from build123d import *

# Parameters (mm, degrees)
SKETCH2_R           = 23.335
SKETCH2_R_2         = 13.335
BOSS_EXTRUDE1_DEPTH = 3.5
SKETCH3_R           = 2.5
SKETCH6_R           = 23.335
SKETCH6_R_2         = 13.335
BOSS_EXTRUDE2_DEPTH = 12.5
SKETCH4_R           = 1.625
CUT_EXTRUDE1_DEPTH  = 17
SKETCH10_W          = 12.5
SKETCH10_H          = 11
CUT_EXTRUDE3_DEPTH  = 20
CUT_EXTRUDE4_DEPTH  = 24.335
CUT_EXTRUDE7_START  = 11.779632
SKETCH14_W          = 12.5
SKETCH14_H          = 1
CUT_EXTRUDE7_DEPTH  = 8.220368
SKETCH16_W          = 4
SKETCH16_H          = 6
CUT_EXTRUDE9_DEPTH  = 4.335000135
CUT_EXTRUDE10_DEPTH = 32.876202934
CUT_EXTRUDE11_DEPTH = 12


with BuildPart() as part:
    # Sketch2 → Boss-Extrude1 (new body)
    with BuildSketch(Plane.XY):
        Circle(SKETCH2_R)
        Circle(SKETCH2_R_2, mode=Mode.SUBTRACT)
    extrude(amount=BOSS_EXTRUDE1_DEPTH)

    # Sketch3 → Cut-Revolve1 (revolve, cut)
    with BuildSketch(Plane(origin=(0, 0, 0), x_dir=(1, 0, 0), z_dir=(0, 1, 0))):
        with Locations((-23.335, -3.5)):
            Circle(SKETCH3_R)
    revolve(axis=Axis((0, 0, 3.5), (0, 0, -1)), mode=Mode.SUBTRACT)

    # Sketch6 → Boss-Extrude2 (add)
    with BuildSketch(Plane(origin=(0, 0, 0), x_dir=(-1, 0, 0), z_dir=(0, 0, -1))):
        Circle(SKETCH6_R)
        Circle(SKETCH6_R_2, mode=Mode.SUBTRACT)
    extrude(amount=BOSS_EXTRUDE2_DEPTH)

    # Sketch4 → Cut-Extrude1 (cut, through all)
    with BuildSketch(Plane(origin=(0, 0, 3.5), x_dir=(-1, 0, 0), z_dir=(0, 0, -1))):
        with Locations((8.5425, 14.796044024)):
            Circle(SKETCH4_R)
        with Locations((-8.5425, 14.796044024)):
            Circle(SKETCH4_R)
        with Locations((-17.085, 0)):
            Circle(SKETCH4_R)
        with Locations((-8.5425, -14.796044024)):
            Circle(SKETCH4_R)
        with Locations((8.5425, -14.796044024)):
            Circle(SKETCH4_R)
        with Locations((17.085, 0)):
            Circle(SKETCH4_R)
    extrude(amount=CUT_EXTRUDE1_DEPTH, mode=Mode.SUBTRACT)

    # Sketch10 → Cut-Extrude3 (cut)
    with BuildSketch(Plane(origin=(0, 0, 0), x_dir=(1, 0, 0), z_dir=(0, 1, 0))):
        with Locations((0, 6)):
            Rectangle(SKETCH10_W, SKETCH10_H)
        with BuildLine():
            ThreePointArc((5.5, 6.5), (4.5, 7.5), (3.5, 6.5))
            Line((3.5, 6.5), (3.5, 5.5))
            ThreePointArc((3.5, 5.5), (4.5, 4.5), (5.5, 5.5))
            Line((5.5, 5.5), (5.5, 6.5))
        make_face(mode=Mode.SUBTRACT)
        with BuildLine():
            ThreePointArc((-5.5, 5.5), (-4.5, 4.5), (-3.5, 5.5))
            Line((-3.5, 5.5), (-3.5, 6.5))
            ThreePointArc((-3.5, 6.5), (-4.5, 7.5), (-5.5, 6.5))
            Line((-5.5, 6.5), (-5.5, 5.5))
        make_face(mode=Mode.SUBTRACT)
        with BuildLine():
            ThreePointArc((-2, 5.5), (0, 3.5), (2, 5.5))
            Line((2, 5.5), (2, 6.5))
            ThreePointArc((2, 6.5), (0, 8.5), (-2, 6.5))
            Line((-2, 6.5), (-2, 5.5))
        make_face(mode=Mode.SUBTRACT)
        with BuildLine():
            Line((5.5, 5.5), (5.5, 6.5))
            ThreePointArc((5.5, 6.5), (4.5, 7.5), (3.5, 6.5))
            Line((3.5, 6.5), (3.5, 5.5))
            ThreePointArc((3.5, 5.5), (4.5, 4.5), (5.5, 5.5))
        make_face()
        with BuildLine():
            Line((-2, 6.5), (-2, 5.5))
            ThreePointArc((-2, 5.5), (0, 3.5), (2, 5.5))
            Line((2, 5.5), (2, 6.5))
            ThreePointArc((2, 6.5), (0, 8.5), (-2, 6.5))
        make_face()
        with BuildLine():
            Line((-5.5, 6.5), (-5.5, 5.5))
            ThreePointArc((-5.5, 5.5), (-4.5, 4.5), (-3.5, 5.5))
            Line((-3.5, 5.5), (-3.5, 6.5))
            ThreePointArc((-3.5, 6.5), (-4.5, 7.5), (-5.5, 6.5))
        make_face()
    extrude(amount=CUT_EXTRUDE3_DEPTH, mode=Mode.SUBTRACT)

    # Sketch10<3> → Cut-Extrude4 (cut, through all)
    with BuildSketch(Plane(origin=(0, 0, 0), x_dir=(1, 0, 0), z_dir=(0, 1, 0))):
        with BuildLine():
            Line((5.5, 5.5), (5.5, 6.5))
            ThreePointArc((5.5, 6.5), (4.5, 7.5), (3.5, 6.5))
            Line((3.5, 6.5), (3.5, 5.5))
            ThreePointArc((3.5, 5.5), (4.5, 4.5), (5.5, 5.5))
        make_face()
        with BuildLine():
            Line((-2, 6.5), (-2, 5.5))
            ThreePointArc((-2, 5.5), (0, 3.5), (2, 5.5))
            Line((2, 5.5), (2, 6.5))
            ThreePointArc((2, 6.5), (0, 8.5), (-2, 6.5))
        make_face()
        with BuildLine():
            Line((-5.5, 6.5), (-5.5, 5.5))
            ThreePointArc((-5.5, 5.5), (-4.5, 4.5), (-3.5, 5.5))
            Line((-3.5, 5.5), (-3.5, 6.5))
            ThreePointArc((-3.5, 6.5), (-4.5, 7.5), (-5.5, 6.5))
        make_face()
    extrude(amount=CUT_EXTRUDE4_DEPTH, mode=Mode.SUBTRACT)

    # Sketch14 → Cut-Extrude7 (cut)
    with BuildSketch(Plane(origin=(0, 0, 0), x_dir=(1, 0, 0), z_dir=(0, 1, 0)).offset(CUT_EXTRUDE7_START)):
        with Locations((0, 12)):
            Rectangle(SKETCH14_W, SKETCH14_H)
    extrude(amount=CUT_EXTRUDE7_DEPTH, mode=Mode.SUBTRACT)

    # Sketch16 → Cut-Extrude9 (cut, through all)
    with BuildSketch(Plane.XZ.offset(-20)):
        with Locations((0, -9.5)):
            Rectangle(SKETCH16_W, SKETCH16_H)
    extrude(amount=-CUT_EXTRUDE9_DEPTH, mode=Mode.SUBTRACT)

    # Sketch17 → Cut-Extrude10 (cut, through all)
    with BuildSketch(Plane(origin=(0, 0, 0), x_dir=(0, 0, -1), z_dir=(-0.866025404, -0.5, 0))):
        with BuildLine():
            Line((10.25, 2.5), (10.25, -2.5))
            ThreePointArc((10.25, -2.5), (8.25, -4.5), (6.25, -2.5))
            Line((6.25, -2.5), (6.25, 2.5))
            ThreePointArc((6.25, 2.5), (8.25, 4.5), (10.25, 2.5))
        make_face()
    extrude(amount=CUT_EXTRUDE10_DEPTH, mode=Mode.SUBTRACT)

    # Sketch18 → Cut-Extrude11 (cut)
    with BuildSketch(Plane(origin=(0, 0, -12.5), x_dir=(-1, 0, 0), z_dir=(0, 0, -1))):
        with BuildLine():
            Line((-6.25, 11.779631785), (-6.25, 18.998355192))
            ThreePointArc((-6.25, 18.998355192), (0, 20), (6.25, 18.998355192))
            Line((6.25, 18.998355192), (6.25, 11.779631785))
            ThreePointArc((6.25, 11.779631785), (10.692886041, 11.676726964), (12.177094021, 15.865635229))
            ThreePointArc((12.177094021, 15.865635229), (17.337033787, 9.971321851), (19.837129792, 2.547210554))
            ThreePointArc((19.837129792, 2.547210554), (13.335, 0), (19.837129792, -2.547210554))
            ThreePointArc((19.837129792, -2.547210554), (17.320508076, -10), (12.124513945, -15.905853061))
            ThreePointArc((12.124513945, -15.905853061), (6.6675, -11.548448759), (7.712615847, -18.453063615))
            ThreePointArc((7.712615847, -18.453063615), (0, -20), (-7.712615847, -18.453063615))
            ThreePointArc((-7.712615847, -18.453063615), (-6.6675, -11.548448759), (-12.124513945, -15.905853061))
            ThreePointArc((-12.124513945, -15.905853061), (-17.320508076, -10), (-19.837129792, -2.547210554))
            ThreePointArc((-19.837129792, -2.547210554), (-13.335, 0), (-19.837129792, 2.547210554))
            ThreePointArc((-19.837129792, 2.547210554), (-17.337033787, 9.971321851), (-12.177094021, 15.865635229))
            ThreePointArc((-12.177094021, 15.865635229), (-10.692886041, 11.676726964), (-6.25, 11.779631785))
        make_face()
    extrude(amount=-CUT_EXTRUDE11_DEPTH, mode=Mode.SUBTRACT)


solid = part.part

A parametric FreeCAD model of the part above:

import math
import FreeCAD as App
import Part
import Sketcher


def add_polygon(sketch, points):
    """Adds a closed chain of lines whose ends are joined by coincident constraints."""
    first, n = sketch.GeometryCount, len(points)
    for a, b in zip(points, points[1:] + points[:1]):
        sketch.addGeometry(Part.LineSegment(App.Vector(*a, 0), App.Vector(*b, 0)), False)
    for i in range(n):
        sketch.addConstraint(Sketcher.Constraint("Coincident", first + i, 2, first + (i + 1) % n, 1))

doc = App.newDocument("Part")
body = doc.addObject("PartDesign::Body", "Body")

# Sketch on XY plane
sketch1 = doc.addObject("Sketcher::SketchObject", "Sketch")
body.addObject(sketch1)
sketch1.AttachmentSupport = (doc.XY_Plane, [""])
sketch1.MapMode = "FlatFace"
sketch1.addGeometry(Part.Circle(App.Vector(0, 0, 0), App.Vector(0, 0, 1), 23.335), False)
sketch1.addGeometry(Part.Circle(App.Vector(0, 0, 0), App.Vector(0, 0, 1), 13.335), False)
sketch1.addConstraint(Sketcher.Constraint("Coincident", 0, 3, -1, 1))
sketch1.addConstraint(Sketcher.Constraint("Coincident", 1, 3, -1, 1))
sketch1.addConstraint(Sketcher.Constraint("Diameter", 0, 46.67))
sketch1.addConstraint(Sketcher.Constraint("Diameter", 1, 26.67))
pad1 = doc.addObject("PartDesign::Pad", "Pad")
body.addObject(pad1)
pad1.Profile = sketch1
pad1.Length = 3.5

# Sketch on XZ plane
sketch2 = doc.addObject("Sketcher::SketchObject", "Sketch001")
body.addObject(sketch2)
sketch2.AttachmentSupport = (doc.XZ_Plane, [""])
sketch2.MapMode = "FlatFace"
sketch2.addGeometry(Part.Circle(App.Vector(-23.335, 3.5, 0), App.Vector(0, 0, 1), 2.5), False)
sketch2.addConstraint(Sketcher.Constraint("Diameter", 0, 5.0))
sketch2.addConstraint(Sketcher.Constraint("DistanceY", -1, 1, 0, 3, 3.5))
sketch2.addConstraint(Sketcher.Constraint("DistanceX", 0, 3, -1, 1, 23.335))
groove = doc.addObject("PartDesign::Groove", "Groove")
body.addObject(groove)
groove.Profile = sketch2
groove.ReferenceAxis = (sketch2, ["V_Axis"])
groove.Angle = 360

# Sketch on XY plane
sketch3 = doc.addObject("Sketcher::SketchObject", "Sketch002")
body.addObject(sketch3)
sketch3.AttachmentSupport = (doc.XY_Plane, [""])
sketch3.MapMode = "FlatFace"
sketch3.addGeometry(Part.Circle(App.Vector(0, 0, 0), App.Vector(0, 0, 1), 23.335), False)
sketch3.addGeometry(Part.Circle(App.Vector(0, 0, 0), App.Vector(0, 0, 1), 13.335), False)
sketch3.addConstraint(Sketcher.Constraint("Coincident", 0, 3, -1, 1))
sketch3.addConstraint(Sketcher.Constraint("Coincident", 1, 3, -1, 1))
sketch3.addConstraint(Sketcher.Constraint("Diameter", 0, 46.67))
sketch3.addConstraint(Sketcher.Constraint("Diameter", 1, 26.67))
pad2 = doc.addObject("PartDesign::Pad", "Pad001")
body.addObject(pad2)
pad2.Profile = sketch3
pad2.Length = 12.5
pad2.Reversed = True

# Sketch on XY plane
sketch4 = doc.addObject("Sketcher::SketchObject", "Sketch003")
body.addObject(sketch4)
sketch4.AttachmentSupport = (doc.XY_Plane, [""])
sketch4.MapMode = "FlatFace"
sketch4.AttachmentOffset = App.Placement(App.Vector(0, 0, 3.5), App.Rotation())
sketch4.addGeometry(Part.Circle(App.Vector(-8.5425, 14.796044, 0), App.Vector(0, 0, 1), 1.625), False)
sketch4.addGeometry(Part.Circle(App.Vector(8.5425, 14.796044, 0), App.Vector(0, 0, 1), 1.625), False)
sketch4.addGeometry(Part.Circle(App.Vector(17.085, 0, 0), App.Vector(0, 0, 1), 1.625), False)
sketch4.addGeometry(Part.Circle(App.Vector(8.5425, -14.796044, 0), App.Vector(0, 0, 1), 1.625), False)
sketch4.addGeometry(Part.Circle(App.Vector(-8.5425, -14.796044, 0), App.Vector(0, 0, 1), 1.625), False)
sketch4.addGeometry(Part.Circle(App.Vector(-17.085, 0, 0), App.Vector(0, 0, 1), 1.625), False)
sketch4.addConstraint(Sketcher.Constraint("Equal", 0, 1))
sketch4.addConstraint(Sketcher.Constraint("Equal", 1, 2))
sketch4.addConstraint(Sketcher.Constraint("Equal", 2, 3))
sketch4.addConstraint(Sketcher.Constraint("Equal", 3, 4))
sketch4.addConstraint(Sketcher.Constraint("Equal", 4, 5))
sketch4.addConstraint(Sketcher.Constraint("Symmetric", 0, 3, 3, 3, -1, 1))
sketch4.addConstraint(Sketcher.Constraint("Symmetric", 1, 3, 4, 3, -1, 1))
sketch4.addConstraint(Sketcher.Constraint("Symmetric", 2, 3, 5, 3, -1, 1))
sketch4.addConstraint(Sketcher.Constraint("Symmetric", 0, 3, 1, 3, -2))
sketch4.addConstraint(Sketcher.Constraint("PointOnObject", 2, 3, -1))
sketch4.addConstraint(Sketcher.Constraint("Diameter", 0, 3.25))
sketch4.addConstraint(Sketcher.Constraint("DistanceX", 5, 3, 2, 3, 34.17))
sketch4.addConstraint(Sketcher.Constraint("DistanceX", 0, 3, 1, 3, 17.085))
sketch4.addConstraint(Sketcher.Constraint("DistanceY", 3, 3, 1, 3, 29.592088))
pocket1 = doc.addObject("PartDesign::Pocket", "Pocket")
body.addObject(pocket1)
pocket1.Profile = sketch4
pocket1.Type = "ThroughAll"

# Sketch on XZ plane
sketch5 = doc.addObject("Sketcher::SketchObject", "Sketch004")
body.addObject(sketch5)
sketch5.AttachmentSupport = (doc.XZ_Plane, [""])
sketch5.MapMode = "FlatFace"
add_polygon(sketch5, [(-6.25, -11.5), (-6.25, -0.5), (6.25, -0.5), (6.25, -11.5)])  # lines 0-3
sketch5.addConstraint(Sketcher.Constraint("Vertical", 0))
sketch5.addConstraint(Sketcher.Constraint("Horizontal", 1))
sketch5.addConstraint(Sketcher.Constraint("Vertical", 2))
sketch5.addConstraint(Sketcher.Constraint("Horizontal", 3))
sketch5.addConstraint(Sketcher.Constraint("DistanceY", 0, 1, 0, 2, 11.0))
sketch5.addConstraint(Sketcher.Constraint("DistanceX", 1, 1, 1, 2, 12.5))
sketch5.addConstraint(Sketcher.Constraint("DistanceY", 0, 2, -1, 1, 0.5))
sketch5.addConstraint(Sketcher.Constraint("DistanceX", 0, 2, -1, 1, 6.25))
pocket2 = doc.addObject("PartDesign::Pocket", "Pocket001")
body.addObject(pocket2)
pocket2.Profile = sketch5
pocket2.Length = 20

# Sketch on XZ plane
sketch6 = doc.addObject("Sketcher::SketchObject", "Sketch005")
body.addObject(sketch6)
sketch6.AttachmentSupport = (doc.XZ_Plane, [""])
sketch6.MapMode = "FlatFace"
sketch6.addGeometry(Part.LineSegment(App.Vector(5.5, -5.5, 0), App.Vector(5.5, -6.5, 0)), False)
sketch6.addGeometry(Part.ArcOfCircle(Part.Circle(App.Vector(4.5, -6.5, 0), App.Vector(0, 0, 1), 1), math.radians(180), math.radians(360)), False)
sketch6.addGeometry(Part.LineSegment(App.Vector(3.5, -6.5, 0), App.Vector(3.5, -5.5, 0)), False)
sketch6.addGeometry(Part.ArcOfCircle(Part.Circle(App.Vector(4.5, -5.5, 0), App.Vector(0, 0, 1), 1), math.radians(0), math.radians(180)), False)
sketch6.addGeometry(Part.LineSegment(App.Vector(-2, -6.5, 0), App.Vector(-2, -5.5, 0)), False)
sketch6.addGeometry(Part.ArcOfCircle(Part.Circle(App.Vector(0, -5.5, 0), App.Vector(0, 0, 1), 2), math.radians(0), math.radians(180)), False)
sketch6.addGeometry(Part.LineSegment(App.Vector(2, -5.5, 0), App.Vector(2, -6.5, 0)), False)
sketch6.addGeometry(Part.ArcOfCircle(Part.Circle(App.Vector(0, -6.5, 0), App.Vector(0, 0, 1), 2), math.radians(180), math.radians(360)), False)
sketch6.addGeometry(Part.LineSegment(App.Vector(-5.5, -6.5, 0), App.Vector(-5.5, -5.5, 0)), False)
sketch6.addGeometry(Part.ArcOfCircle(Part.Circle(App.Vector(-4.5, -5.5, 0), App.Vector(0, 0, 1), 1), math.radians(0), math.radians(180)), False)
sketch6.addGeometry(Part.LineSegment(App.Vector(-3.5, -5.5, 0), App.Vector(-3.5, -6.5, 0)), False)
sketch6.addGeometry(Part.ArcOfCircle(Part.Circle(App.Vector(-4.5, -6.5, 0), App.Vector(0, 0, 1), 1), math.radians(180), math.radians(360)), False)
sketch6.addConstraint(Sketcher.Constraint("Tangent", 0, 2, 1, 2))
sketch6.addConstraint(Sketcher.Constraint("Tangent", 1, 1, 2, 1))
sketch6.addConstraint(Sketcher.Constraint("Tangent", 2, 2, 3, 2))
sketch6.addConstraint(Sketcher.Constraint("Tangent", 3, 1, 0, 1))
sketch6.addConstraint(Sketcher.Constraint("Tangent", 4, 2, 5, 2))
sketch6.addConstraint(Sketcher.Constraint("Tangent", 5, 1, 6, 1))
sketch6.addConstraint(Sketcher.Constraint("Tangent", 6, 2, 7, 2))
sketch6.addConstraint(Sketcher.Constraint("Tangent", 7, 1, 4, 1))
sketch6.addConstraint(Sketcher.Constraint("Tangent", 8, 2, 9, 2))
sketch6.addConstraint(Sketcher.Constraint("Tangent", 9, 1, 10, 1))
sketch6.addConstraint(Sketcher.Constraint("Tangent", 10, 2, 11, 2))
sketch6.addConstraint(Sketcher.Constraint("Tangent", 11, 1, 8, 1))
sketch6.addConstraint(Sketcher.Constraint("Vertical", 0))
sketch6.addConstraint(Sketcher.Constraint("Vertical", 2))
sketch6.addConstraint(Sketcher.Constraint("Vertical", 4))
sketch6.addConstraint(Sketcher.Constraint("Vertical", 6))
sketch6.addConstraint(Sketcher.Constraint("Vertical", 8))
sketch6.addConstraint(Sketcher.Constraint("Vertical", 10))
sketch6.addConstraint(Sketcher.Constraint("Equal", 3, 9))
sketch6.addConstraint(Sketcher.Constraint("Symmetric", 3, 3, 9, 3, -2))
sketch6.addConstraint(Sketcher.Constraint("PointOnObject", 5, 3, -2))
sketch6.addConstraint(Sketcher.Constraint("Horizontal", 3, 3, 5, 3))
sketch6.addConstraint(Sketcher.Constraint("Horizontal", 1, 3, 7, 3))
sketch6.addConstraint(Sketcher.Constraint("Horizontal", 7, 3, 11, 3))
sketch6.addConstraint(Sketcher.Constraint("Radius", 1, 1.0))
sketch6.addConstraint(Sketcher.Constraint("Radius", 5, 2.0))
sketch6.addConstraint(Sketcher.Constraint("DistanceY", 0, 2, 0, 1, 1.0))
sketch6.addConstraint(Sketcher.Constraint("DistanceX", 9, 3, 3, 3, 9.0))
sketch6.addConstraint(Sketcher.Constraint("DistanceY", 1, 3, -1, 1, 6.5))
pocket3 = doc.addObject("PartDesign::Pocket", "Pocket002")
body.addObject(pocket3)
pocket3.Profile = sketch6
pocket3.Type = "ThroughAll"

# Sketch on XZ plane
sketch7 = doc.addObject("Sketcher::SketchObject", "Sketch006")
body.addObject(sketch7)
sketch7.AttachmentSupport = (doc.XZ_Plane, [""])
sketch7.MapMode = "FlatFace"
sketch7.AttachmentOffset = App.Placement(App.Vector(0, 0, -11.779632), App.Rotation())
add_polygon(sketch7, [(-6.25, -12.5), (-6.25, -11.5), (6.25, -11.5), (6.25, -12.5)])  # lines 0-3
sketch7.addConstraint(Sketcher.Constraint("Vertical", 0))
sketch7.addConstraint(Sketcher.Constraint("Horizontal", 1))
sketch7.addConstraint(Sketcher.Constraint("Vertical", 2))
sketch7.addConstraint(Sketcher.Constraint("Horizontal", 3))
sketch7.addConstraint(Sketcher.Constraint("DistanceY", 0, 1, 0, 2, 1.0))
sketch7.addConstraint(Sketcher.Constraint("DistanceX", 1, 1, 1, 2, 12.5))
sketch7.addConstraint(Sketcher.Constraint("DistanceY", 0, 2, -1, 1, 11.5))
sketch7.addConstraint(Sketcher.Constraint("DistanceX", 0, 2, -1, 1, 6.25))
pocket4 = doc.addObject("PartDesign::Pocket", "Pocket003")
body.addObject(pocket4)
pocket4.Profile = sketch7
pocket4.Length = 8.220368

# Sketch on XZ plane
sketch8 = doc.addObject("Sketcher::SketchObject", "Sketch007")
body.addObject(sketch8)
sketch8.AttachmentSupport = (doc.XZ_Plane, [""])
sketch8.MapMode = "FlatFace"
sketch8.AttachmentOffset = App.Placement(App.Vector(0, 0, -20), App.Rotation())
add_polygon(sketch8, [(-2, -6.5), (-2, -12.5), (2, -12.5), (2, -6.5)])  # lines 0-3
sketch8.addConstraint(Sketcher.Constraint("Vertical", 0))
sketch8.addConstraint(Sketcher.Constraint("Horizontal", 1))
sketch8.addConstraint(Sketcher.Constraint("Vertical", 2))
sketch8.addConstraint(Sketcher.Constraint("Horizontal", 3))
sketch8.addConstraint(Sketcher.Constraint("DistanceX", 1, 1, 1, 2, 4.0))
sketch8.addConstraint(Sketcher.Constraint("DistanceY", 0, 2, 0, 1, 6.0))
sketch8.addConstraint(Sketcher.Constraint("DistanceX", 0, 2, -1, 1, 2.0))
sketch8.addConstraint(Sketcher.Constraint("DistanceY", 0, 2, -1, 1, 12.5))
pocket5 = doc.addObject("PartDesign::Pocket", "Pocket004")
body.addObject(pocket5)
pocket5.Profile = sketch8
pocket5.Type = "ThroughAll"

# Sketch on an angled plane
sketch9 = doc.addObject("Sketcher::SketchObject", "Sketch008")
body.addObject(sketch9)
sketch9.Placement = App.Placement(App.Vector(0, 0, 0), App.Rotation(App.Vector(0, 0, -1), App.Vector(0.5, -0.866025404, 0), App.Vector(-0.866025404, -0.5, 0), "ZXY"))
sketch9.addGeometry(Part.LineSegment(App.Vector(10.25, -2.5, 0), App.Vector(10.25, 2.5, 0)), False)
sketch9.addGeometry(Part.ArcOfCircle(Part.Circle(App.Vector(8.25, 2.5, 0), App.Vector(0, 0, 1), 2), math.radians(0), math.radians(180)), False)
sketch9.addGeometry(Part.LineSegment(App.Vector(6.25, 2.5, 0), App.Vector(6.25, -2.5, 0)), False)
sketch9.addGeometry(Part.ArcOfCircle(Part.Circle(App.Vector(8.25, -2.5, 0), App.Vector(0, 0, 1), 2), math.radians(180), math.radians(360)), False)
sketch9.addConstraint(Sketcher.Constraint("Tangent", 0, 2, 1, 1))
sketch9.addConstraint(Sketcher.Constraint("Tangent", 1, 2, 2, 1))
sketch9.addConstraint(Sketcher.Constraint("Tangent", 2, 2, 3, 1))
sketch9.addConstraint(Sketcher.Constraint("Tangent", 3, 2, 0, 1))
sketch9.addConstraint(Sketcher.Constraint("Vertical", 0))
sketch9.addConstraint(Sketcher.Constraint("Vertical", 2))
sketch9.addConstraint(Sketcher.Constraint("Radius", 1, 2.0))
sketch9.addConstraint(Sketcher.Constraint("DistanceY", 0, 1, 0, 2, 5.0))
sketch9.addConstraint(Sketcher.Constraint("DistanceY", -1, 1, 1, 3, 2.5))
sketch9.addConstraint(Sketcher.Constraint("DistanceX", -1, 1, 1, 3, 8.25))
pocket6 = doc.addObject("PartDesign::Pocket", "Pocket005")
body.addObject(pocket6)
pocket6.Profile = sketch9
pocket6.Type = "ThroughAll"
pocket6.Reversed = True

# Sketch on XY plane
sketch10 = doc.addObject("Sketcher::SketchObject", "Sketch009")
body.addObject(sketch10)
sketch10.AttachmentSupport = (doc.XY_Plane, [""])
sketch10.MapMode = "FlatFace"
sketch10.AttachmentOffset = App.Placement(App.Vector(0, 0, -12.5), App.Rotation())
sketch10.addGeometry(Part.LineSegment(App.Vector(6.25, 18.998355, 0), App.Vector(6.25, 11.779632, 0)), False)
sketch10.addGeometry(Part.ArcOfCircle(Part.Circle(App.Vector(8.5425, 14.796044, 0), App.Vector(0, 0, 1), 3.788707), math.radians(-127.235155), math.radians(16.398143)), False)
sketch10.addGeometry(Part.ArcOfCircle(Part.Circle(App.Vector(0, 0, 0), App.Vector(0, 0, 1), 20), math.radians(7.317094), math.radians(52.493264)), False)
sketch10.addGeometry(Part.ArcOfCircle(Part.Circle(App.Vector(17.085, 0, 0), App.Vector(0, 0, 1), 3.75), math.radians(42.785543), math.radians(317.214457)), False)
sketch10.addGeometry(Part.ArcOfCircle(Part.Circle(App.Vector(0, 0, 0), App.Vector(0, 0, 1), 20), math.radians(-52.682906), math.radians(-7.317094)), False)
sketch10.addGeometry(Part.ArcOfCircle(Part.Circle(App.Vector(8.5425, -14.796044, 0), App.Vector(0, 0, 1), 3.75), math.radians(-17.214457), math.radians(257.214457)), False)
sketch10.addGeometry(Part.ArcOfCircle(Part.Circle(App.Vector(0, 0, 0), App.Vector(0, 0, 1), 20), math.radians(-112.682906), math.radians(-67.317094)), False)
sketch10.addGeometry(Part.ArcOfCircle(Part.Circle(App.Vector(-8.5425, -14.796044, 0), App.Vector(0, 0, 1), 3.75), math.radians(-77.214457), math.radians(197.214457)), False)
sketch10.addGeometry(Part.ArcOfCircle(Part.Circle(App.Vector(0, 0, 0), App.Vector(0, 0, 1), 20), math.radians(-172.682906), math.radians(-127.317094)), False)
sketch10.addGeometry(Part.ArcOfCircle(Part.Circle(App.Vector(-17.085, 0, 0), App.Vector(0, 0, 1), 3.75), math.radians(-137.214457), math.radians(137.214457)), False)
sketch10.addGeometry(Part.ArcOfCircle(Part.Circle(App.Vector(0, 0, 0), App.Vector(0, 0, 1), 20), math.radians(127.506736), math.radians(172.682906)), False)
sketch10.addGeometry(Part.ArcOfCircle(Part.Circle(App.Vector(-8.5425, 14.796044, 0), App.Vector(0, 0, 1), 3.788707), math.radians(163.601857), math.radians(307.235155)), False)
sketch10.addGeometry(Part.LineSegment(App.Vector(-6.25, 11.779632, 0), App.Vector(-6.25, 18.998355, 0)), False)
sketch10.addGeometry(Part.ArcOfCircle(Part.Circle(App.Vector(0, 0, 0), App.Vector(0, 0, 1), 20), math.radians(71.790043), math.radians(108.209957)), False)
sketch10.addConstraint(Sketcher.Constraint("Coincident", 0, 2, 1, 1))
sketch10.addConstraint(Sketcher.Constraint("Coincident", 1, 2, 2, 2))
sketch10.addConstraint(Sketcher.Constraint("Coincident", 2, 1, 3, 1))
sketch10.addConstraint(Sketcher.Constraint("Coincident", 3, 2, 4, 2))
sketch10.addConstraint(Sketcher.Constraint("Coincident", 4, 1, 5, 1))
sketch10.addConstraint(Sketcher.Constraint("Coincident", 5, 2, 6, 2))
sketch10.addConstraint(Sketcher.Constraint("Coincident", 6, 1, 7, 1))
sketch10.addConstraint(Sketcher.Constraint("Coincident", 7, 2, 8, 2))
sketch10.addConstraint(Sketcher.Constraint("Coincident", 8, 1, 9, 1))
sketch10.addConstraint(Sketcher.Constraint("Coincident", 9, 2, 10, 2))
sketch10.addConstraint(Sketcher.Constraint("Coincident", 10, 1, 11, 1))
sketch10.addConstraint(Sketcher.Constraint("Coincident", 11, 2, 12, 1))
sketch10.addConstraint(Sketcher.Constraint("Coincident", 12, 2, 13, 2))
sketch10.addConstraint(Sketcher.Constraint("Coincident", 13, 1, 0, 1))
sketch10.addConstraint(Sketcher.Constraint("Vertical", 0))
sketch10.addConstraint(Sketcher.Constraint("Vertical", 12))
sketch10.addConstraint(Sketcher.Constraint("Coincident", 2, 3, -1, 1))
sketch10.addConstraint(Sketcher.Constraint("Coincident", 4, 3, -1, 1))
sketch10.addConstraint(Sketcher.Constraint("Coincident", 6, 3, -1, 1))
sketch10.addConstraint(Sketcher.Constraint("Coincident", 8, 3, -1, 1))
sketch10.addConstraint(Sketcher.Constraint("Coincident", 10, 3, -1, 1))
sketch10.addConstraint(Sketcher.Constraint("Coincident", 13, 3, -1, 1))
sketch10.addConstraint(Sketcher.Constraint("Equal", 2, 4))
sketch10.addConstraint(Sketcher.Constraint("Equal", 3, 5))
sketch10.addConstraint(Sketcher.Constraint("Equal", 4, 6))
sketch10.addConstraint(Sketcher.Constraint("Equal", 5, 7))
sketch10.addConstraint(Sketcher.Constraint("Equal", 6, 8))
sketch10.addConstraint(Sketcher.Constraint("Equal", 7, 9))
sketch10.addConstraint(Sketcher.Constraint("Equal", 8, 10))
sketch10.addConstraint(Sketcher.Constraint("Equal", 1, 11))
sketch10.addConstraint(Sketcher.Constraint("Equal", 10, 13))
sketch10.addConstraint(Sketcher.Constraint("Symmetric", 1, 3, 7, 3, -1, 1))
sketch10.addConstraint(Sketcher.Constraint("Symmetric", 3, 3, 9, 3, -1, 1))
sketch10.addConstraint(Sketcher.Constraint("Symmetric", 5, 3, 11, 3, -1, 1))
sketch10.addConstraint(Sketcher.Constraint("Symmetric", 5, 3, 7, 3, -2))
sketch10.addConstraint(Sketcher.Constraint("PointOnObject", 3, 3, -1))
sketch10.addConstraint(Sketcher.Constraint("Horizontal", 0, 2, 11, 2))
sketch10.addConstraint(Sketcher.Constraint("Radius", 2, 20.0))
sketch10.addConstraint(Sketcher.Constraint("Radius", 3, 3.75))
sketch10.addConstraint(Sketcher.Constraint("DistanceX", 11, 2, 0, 2, 12.5))
sketch10.addConstraint(Sketcher.Constraint("DistanceX", -1, 1, 3, 3, 17.085))
sketch10.addConstraint(Sketcher.Constraint("Radius", 1, 3.788707))
sketch10.addConstraint(Sketcher.Constraint("DistanceX", 7, 3, 5, 3, 17.085))
sketch10.addConstraint(Sketcher.Constraint("DistanceX", 5, 2, 4, 1, 4.411898))
pocket7 = doc.addObject("PartDesign::Pocket", "Pocket006")
body.addObject(pocket7)
pocket7.Profile = sketch10
pocket7.Length = 12
pocket7.Reversed = True

doc.recompute()
